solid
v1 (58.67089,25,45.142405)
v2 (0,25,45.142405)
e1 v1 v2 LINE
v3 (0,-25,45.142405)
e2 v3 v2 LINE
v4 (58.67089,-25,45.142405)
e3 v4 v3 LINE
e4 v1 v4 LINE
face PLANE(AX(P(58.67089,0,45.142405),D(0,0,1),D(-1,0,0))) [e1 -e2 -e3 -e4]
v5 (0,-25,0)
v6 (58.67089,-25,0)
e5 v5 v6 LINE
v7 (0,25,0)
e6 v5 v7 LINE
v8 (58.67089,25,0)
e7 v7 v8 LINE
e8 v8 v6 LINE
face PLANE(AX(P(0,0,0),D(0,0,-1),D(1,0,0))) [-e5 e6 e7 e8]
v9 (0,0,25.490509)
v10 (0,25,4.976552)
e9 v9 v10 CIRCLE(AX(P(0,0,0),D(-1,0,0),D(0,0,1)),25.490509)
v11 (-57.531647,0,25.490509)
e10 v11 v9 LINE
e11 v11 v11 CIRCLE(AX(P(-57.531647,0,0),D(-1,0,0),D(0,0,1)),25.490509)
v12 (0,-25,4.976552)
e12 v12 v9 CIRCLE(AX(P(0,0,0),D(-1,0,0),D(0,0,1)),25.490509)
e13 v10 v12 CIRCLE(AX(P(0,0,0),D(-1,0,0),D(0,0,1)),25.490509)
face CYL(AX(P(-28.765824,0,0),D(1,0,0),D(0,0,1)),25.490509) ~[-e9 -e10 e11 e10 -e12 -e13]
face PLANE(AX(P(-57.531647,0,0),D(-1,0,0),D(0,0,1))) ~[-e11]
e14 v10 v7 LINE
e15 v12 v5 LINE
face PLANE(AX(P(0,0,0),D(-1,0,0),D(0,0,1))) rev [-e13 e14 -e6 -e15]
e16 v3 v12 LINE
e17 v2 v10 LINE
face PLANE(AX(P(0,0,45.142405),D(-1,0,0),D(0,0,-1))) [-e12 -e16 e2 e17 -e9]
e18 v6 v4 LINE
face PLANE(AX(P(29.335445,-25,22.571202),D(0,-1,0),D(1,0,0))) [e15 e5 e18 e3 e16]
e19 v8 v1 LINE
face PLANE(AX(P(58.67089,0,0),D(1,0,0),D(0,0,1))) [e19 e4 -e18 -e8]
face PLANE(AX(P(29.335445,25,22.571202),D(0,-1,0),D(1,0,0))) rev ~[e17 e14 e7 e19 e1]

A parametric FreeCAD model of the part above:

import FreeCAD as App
import Part
import Sketcher

V = App.Vector

doc = App.newDocument("Part")
params = doc.addObject("Spreadsheet::Sheet", "Params")
for row, (alias, value) in enumerate([
    ("pad1_length", "50 mm"),
    ("revolution_angle", "360 deg"),
], start=1):
    params.set(f"A{row}", alias)
    params.set(f"B{row}", "=" + value)
    params.setAlias(f"B{row}", alias)

body = doc.addObject("PartDesign::Body", "Body")

# Sketch on XZ plane
sketch1 = doc.addObject("Sketcher::SketchObject", "Sketch")
body.addObject(sketch1)
sketch1.AttachmentSupport = (doc.XZ_Plane, [""])
sketch1.MapMode = "FlatFace"
sketch1.addGeometry(Part.LineSegment(V(0, 0, 0), V(59, 0, 0)), False)
sketch1.addGeometry(Part.LineSegment(V(59, 0, 0), V(59, 45, 0)), False)
sketch1.addGeometry(Part.LineSegment(V(59, 45, 0), V(0, 45, 0)), False)
sketch1.addGeometry(Part.LineSegment(V(0, 45, 0), V(0, 0, 0)), False)
sketch1.addConstraint(Sketcher.Constraint("Coincident", 0, 2, 1, 1))
sketch1.addConstraint(Sketcher.Constraint("Coincident", 1, 2, 2, 1))
sketch1.addConstraint(Sketcher.Constraint("Coincident", 2, 2, 3, 1))
sketch1.addConstraint(Sketcher.Constraint("Coincident", 3, 2, 0, 1))
sketch1.addConstraint(Sketcher.Constraint("Horizontal", 0))
sketch1.addConstraint(Sketcher.Constraint("Vertical", 1))
sketch1.addConstraint(Sketcher.Constraint("Horizontal", 2))
sketch1.addConstraint(Sketcher.Constraint("Vertical", 3))
sketch1.addConstraint(Sketcher.Constraint("Coincident", 3, 2, -1, 1))
sketch1.addConstraint(Sketcher.Constraint("DistanceX", 0, 1, 0, 2, 58.67089))
sketch1.addConstraint(Sketcher.Constraint("DistanceY", 1, 1, 1, 2, 45.142405))
pad1 = doc.addObject("PartDesign::Pad", "Pad")
body.addObject(pad1)
pad1.Profile = sketch1
pad1.setExpression("Length", "Params.pad1_length")
pad1.Midplane = True

# Sketch on XZ plane
sketch2 = doc.addObject("Sketcher::SketchObject", "Sketch001")
body.addObject(sketch2)
sketch2.AttachmentSupport = (doc.XZ_Plane, [""])
sketch2.MapMode = "FlatFace"
sketch2.addGeometry(Part.LineSegment(V(-58, 25, 0), V(-58, 0, 0)), False)
sketch2.addGeometry(Part.LineSegment(V(-58, 0, 0), V(0, 0, 0)), False)
sketch2.addGeometry(Part.LineSegment(V(0, 0, 0), V(0, 25, 0)), False)
sketch2.addGeometry(Part.LineSegment(V(0, 25, 0), V(-58, 25, 0)), False)
sketch2.addConstraint(Sketcher.Constraint("Coincident", 0, 2, 1, 1))
sketch2.addConstraint(Sketcher.Constraint("Coincident", 1, 2, 2, 1))
sketch2.addConstraint(Sketcher.Constraint("Coincident", 2, 2, 3, 1))
sketch2.addConstraint(Sketcher.Constraint("Coincident", 3, 2, 0, 1))
sketch2.addConstraint(Sketcher.Constraint("Vertical", 0))
sketch2.addConstraint(Sketcher.Constraint("Horizontal", 1))
sketch2.addConstraint(Sketcher.Constraint("Vertical", 2))
sketch2.addConstraint(Sketcher.Constraint("Horizontal", 3))
sketch2.addConstraint(Sketcher.Constraint("Coincident", 1, 2, -1, 1))
sketch2.addConstraint(Sketcher.Constraint("DistanceY", 0, 2, 0, 1, 25.490509))
sketch2.addConstraint(Sketcher.Constraint("DistanceX", 1, 1, 1, 2, 57.531647))
revolution = doc.addObject("PartDesign::Revolution", "Revolution")
body.addObject(revolution)
revolution.Profile = sketch2
revolution.ReferenceAxis = (sketch2, ["H_Axis"])
revolution.setExpression("Angle", "Params.revolution_angle")

doc.recompute()
